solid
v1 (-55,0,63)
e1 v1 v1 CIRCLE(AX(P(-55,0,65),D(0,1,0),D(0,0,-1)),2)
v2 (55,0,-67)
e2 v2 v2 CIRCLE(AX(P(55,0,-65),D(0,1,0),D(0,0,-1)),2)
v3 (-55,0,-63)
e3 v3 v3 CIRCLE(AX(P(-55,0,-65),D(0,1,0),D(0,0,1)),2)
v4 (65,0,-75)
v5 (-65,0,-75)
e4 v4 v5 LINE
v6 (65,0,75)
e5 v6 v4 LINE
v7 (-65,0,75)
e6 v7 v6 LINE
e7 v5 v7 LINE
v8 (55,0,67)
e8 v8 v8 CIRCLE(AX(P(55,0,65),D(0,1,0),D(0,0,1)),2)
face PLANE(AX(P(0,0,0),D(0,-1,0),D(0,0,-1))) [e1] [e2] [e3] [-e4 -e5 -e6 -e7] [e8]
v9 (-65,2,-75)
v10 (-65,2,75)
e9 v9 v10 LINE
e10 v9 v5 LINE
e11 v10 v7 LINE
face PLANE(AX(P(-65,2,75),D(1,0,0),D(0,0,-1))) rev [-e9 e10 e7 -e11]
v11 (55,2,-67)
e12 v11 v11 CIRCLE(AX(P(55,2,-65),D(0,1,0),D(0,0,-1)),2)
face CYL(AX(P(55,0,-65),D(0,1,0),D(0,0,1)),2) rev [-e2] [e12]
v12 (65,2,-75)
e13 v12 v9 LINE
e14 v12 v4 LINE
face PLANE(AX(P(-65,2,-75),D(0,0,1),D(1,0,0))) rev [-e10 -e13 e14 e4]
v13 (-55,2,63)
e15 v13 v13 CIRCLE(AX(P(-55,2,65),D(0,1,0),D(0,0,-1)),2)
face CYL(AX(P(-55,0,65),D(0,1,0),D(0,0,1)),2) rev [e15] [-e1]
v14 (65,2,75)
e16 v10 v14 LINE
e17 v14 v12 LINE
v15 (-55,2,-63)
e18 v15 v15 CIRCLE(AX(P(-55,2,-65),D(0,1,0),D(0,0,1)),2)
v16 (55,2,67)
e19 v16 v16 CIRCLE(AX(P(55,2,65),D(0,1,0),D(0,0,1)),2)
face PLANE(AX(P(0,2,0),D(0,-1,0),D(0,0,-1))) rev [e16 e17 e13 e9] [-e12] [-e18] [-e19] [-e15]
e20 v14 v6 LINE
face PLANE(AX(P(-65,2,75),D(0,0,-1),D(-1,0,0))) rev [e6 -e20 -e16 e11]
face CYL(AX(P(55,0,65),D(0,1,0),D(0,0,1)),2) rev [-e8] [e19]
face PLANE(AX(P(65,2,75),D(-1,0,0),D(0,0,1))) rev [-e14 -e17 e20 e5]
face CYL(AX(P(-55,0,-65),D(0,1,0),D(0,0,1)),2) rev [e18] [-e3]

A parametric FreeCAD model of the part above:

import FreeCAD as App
import Part
import Sketcher


def add_polygon(sketch, points):
    """Adds a closed chain of lines whose ends are joined by coincident constraints."""
    first, n = sketch.GeometryCount, len(points)
    for a, b in zip(points, points[1:] + points[:1]):
        sketch.addGeometry(Part.LineSegment(App.Vector(*a, 0), App.Vector(*b, 0)), False)
    for i in range(n):
        sketch.addConstraint(Sketcher.Constraint("Coincident", first + i, 2, first + (i + 1) % n, 1))

doc = App.newDocument("Part")
body = doc.addObject("PartDesign::Body", "Body")

sketch1 = body.newObject("Sketcher::SketchObject", "Sketch")
sketch1.AttachmentSupport = (doc.getObject("XZ_Plane"), [""])
sketch1.MapMode = "FlatFace"
add_polygon(sketch1, [(-65, -75), (-65, 75), (65, 75), (65, -75)])
sketch1.addConstraint([
    Sketcher.Constraint("Vertical", 0),
    Sketcher.Constraint("Horizontal", 1),
    Sketcher.Constraint("Vertical", 2),
    Sketcher.Constraint("Horizontal", 3),
    Sketcher.Constraint("Symmetric", 0, 2, 2, 2, -1, 1),
    Sketcher.Constraint("DistanceX", 1, 1, 1, 2, 130.0),
    Sketcher.Constraint("DistanceY", 0, 1, 0, 2, 150.0),
])
pad1 = body.newObject("PartDesign::Pad", "Pad")
pad1.Profile = sketch1
pad1.Length = 2
pad1.Reversed = True

sketch2 = body.newObject("Sketcher::SketchObject", "Sketch001")
sketch2.AttachmentSupport = (doc.getObject("XZ_Plane"), [""])
sketch2.MapMode = "FlatFace"
sketch2.AttachmentOffset = App.Placement(App.Vector(0, 0, -2), App.Rotation())
sketch2.addGeometry([
    Part.Circle(App.Vector(-55, -65, 0), App.Vector(0, 0, 1), 2),
    Part.Circle(App.Vector(55, -65, 0), App.Vector(0, 0, 1), 2),
    Part.Circle(App.Vector(55, 65, 0), App.Vector(0, 0, 1), 2),
    Part.Circle(App.Vector(-55, 65, 0), App.Vector(0, 0, 1), 2),
], False)
sketch2.addConstraint([
    Sketcher.Constraint("Equal", 0, 1),
    Sketcher.Constraint("Equal", 1, 2),
    Sketcher.Constraint("Equal", 2, 3),
    Sketcher.Constraint("Symmetric", 0, 3, 2, 3, -1, 1),
    Sketcher.Constraint("Symmetric", 1, 3, 3, 3, -1, 1),
    Sketcher.Constraint("Symmetric", 0, 3, 1, 3, -2),
    Sketcher.Constraint("Diameter", 0, 4.0),
    Sketcher.Constraint("DistanceX", 0, 3, -1, 1, 55.0),
    Sketcher.Constraint("DistanceY", 0, 3, -1, 1, 65.0),
])
pocket1 = body.newObject("PartDesign::Pocket", "Pocket")
pocket1.Profile = sketch2
pocket1.Type = "ThroughAll"
pocket1.Reversed = True

doc.recompute()
